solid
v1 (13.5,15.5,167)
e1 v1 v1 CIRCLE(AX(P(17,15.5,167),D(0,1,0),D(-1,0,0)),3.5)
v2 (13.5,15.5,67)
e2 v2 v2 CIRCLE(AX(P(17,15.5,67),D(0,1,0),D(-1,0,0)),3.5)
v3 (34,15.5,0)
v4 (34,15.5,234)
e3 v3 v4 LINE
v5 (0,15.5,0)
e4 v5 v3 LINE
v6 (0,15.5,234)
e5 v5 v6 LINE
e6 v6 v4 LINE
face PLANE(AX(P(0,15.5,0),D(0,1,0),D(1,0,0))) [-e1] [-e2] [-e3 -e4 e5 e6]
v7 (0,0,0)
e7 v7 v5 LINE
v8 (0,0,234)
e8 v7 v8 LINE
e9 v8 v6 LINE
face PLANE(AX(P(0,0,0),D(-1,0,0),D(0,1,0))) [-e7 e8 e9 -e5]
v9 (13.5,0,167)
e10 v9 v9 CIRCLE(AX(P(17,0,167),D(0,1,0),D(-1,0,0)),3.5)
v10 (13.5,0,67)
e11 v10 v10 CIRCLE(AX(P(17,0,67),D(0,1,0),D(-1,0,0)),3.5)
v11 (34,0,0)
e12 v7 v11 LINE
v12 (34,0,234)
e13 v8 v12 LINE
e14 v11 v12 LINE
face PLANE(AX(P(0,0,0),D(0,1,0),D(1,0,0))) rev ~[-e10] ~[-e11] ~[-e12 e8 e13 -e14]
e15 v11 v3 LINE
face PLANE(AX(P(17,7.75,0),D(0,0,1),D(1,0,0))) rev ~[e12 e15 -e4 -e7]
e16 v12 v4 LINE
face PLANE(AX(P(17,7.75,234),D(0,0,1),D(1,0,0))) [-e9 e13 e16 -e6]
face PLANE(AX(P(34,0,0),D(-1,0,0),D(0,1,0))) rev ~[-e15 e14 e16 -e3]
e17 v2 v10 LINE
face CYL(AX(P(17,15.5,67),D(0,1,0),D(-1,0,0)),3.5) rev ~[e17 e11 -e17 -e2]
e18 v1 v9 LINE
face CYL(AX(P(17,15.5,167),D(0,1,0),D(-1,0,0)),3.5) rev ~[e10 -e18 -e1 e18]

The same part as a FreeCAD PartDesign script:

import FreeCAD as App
import Part
import Sketcher

V = App.Vector


def add_polygon(sketch, points):
    """Adds a closed chain of lines whose ends are joined by coincident constraints."""
    first, n = sketch.GeometryCount, len(points)
    for a, b in zip(points, points[1:] + points[:1]):
        sketch.addGeometry(Part.LineSegment(App.Vector(*a, 0), App.Vector(*b, 0)), False)
    for i in range(n):
        sketch.addConstraint(Sketcher.Constraint("Coincident", first + i, 2, first + (i + 1) % n, 1))

doc = App.newDocument("Part")
body = doc.addObject("PartDesign::Body", "Body")

# Sketch on XY plane
sketch1 = body.newObject("Sketcher::SketchObject", "Sketch")
sketch1.AttachmentSupport = (doc.getObject("XY_Plane"), [""])
sketch1.MapMode = "FlatFace"
add_polygon(sketch1, [(0, 16), (0, 0), (34, 0), (34, 16)])  # lines 0-3
sketch1.addConstraint([
    Sketcher.Constraint("Vertical", 0),
    Sketcher.Constraint("Horizontal", 1),
    Sketcher.Constraint("Vertical", 2),
    Sketcher.Constraint("Horizontal", 3),
    Sketcher.Constraint("Coincident", 0, 2, -1, 1),
    Sketcher.Constraint("DistanceX", 1, 1, 1, 2, 34.0),
    Sketcher.Constraint("DistanceY", 0, 2, 0, 1, 15.5),
])
pad1 = body.newObject("PartDesign::Pad", "Pad")
pad1.Profile = sketch1
pad1.Length = 234

# Sketch on XZ plane
sketch2 = body.newObject("Sketcher::SketchObject", "Sketch001")
sketch2.AttachmentSupport = (doc.getObject("XZ_Plane"), [""])
sketch2.MapMode = "FlatFace"
sketch2.AttachmentOffset = App.Placement(V(0, 0, -15.5), App.Rotation())
sketch2.addGeometry([
    Part.Circle(V(17, 167, 0), V(0, 0, 1), 3.5),
    Part.Circle(V(17, 67, 0), V(0, 0, 1), 3.5),
], False)
sketch2.addConstraint([
    Sketcher.Constraint("Equal", 0, 1),
    Sketcher.Constraint("Vertical", 0, 3, 1, 3),
    Sketcher.Constraint("Diameter", 0, 7.0),
    Sketcher.Constraint("DistanceX", -1, 1, 0, 3, 17.0),
    Sketcher.Constraint("DistanceY", -1, 1, 0, 3, 167.0),
    Sketcher.Constraint("DistanceY", -1, 1, 1, 3, 67.0),
])
pocket1 = body.newObject("PartDesign::Pocket", "Pocket")
pocket1.Profile = sketch2
pocket1.Length = 25
pocket1.Reversed = True

doc.recompute()
